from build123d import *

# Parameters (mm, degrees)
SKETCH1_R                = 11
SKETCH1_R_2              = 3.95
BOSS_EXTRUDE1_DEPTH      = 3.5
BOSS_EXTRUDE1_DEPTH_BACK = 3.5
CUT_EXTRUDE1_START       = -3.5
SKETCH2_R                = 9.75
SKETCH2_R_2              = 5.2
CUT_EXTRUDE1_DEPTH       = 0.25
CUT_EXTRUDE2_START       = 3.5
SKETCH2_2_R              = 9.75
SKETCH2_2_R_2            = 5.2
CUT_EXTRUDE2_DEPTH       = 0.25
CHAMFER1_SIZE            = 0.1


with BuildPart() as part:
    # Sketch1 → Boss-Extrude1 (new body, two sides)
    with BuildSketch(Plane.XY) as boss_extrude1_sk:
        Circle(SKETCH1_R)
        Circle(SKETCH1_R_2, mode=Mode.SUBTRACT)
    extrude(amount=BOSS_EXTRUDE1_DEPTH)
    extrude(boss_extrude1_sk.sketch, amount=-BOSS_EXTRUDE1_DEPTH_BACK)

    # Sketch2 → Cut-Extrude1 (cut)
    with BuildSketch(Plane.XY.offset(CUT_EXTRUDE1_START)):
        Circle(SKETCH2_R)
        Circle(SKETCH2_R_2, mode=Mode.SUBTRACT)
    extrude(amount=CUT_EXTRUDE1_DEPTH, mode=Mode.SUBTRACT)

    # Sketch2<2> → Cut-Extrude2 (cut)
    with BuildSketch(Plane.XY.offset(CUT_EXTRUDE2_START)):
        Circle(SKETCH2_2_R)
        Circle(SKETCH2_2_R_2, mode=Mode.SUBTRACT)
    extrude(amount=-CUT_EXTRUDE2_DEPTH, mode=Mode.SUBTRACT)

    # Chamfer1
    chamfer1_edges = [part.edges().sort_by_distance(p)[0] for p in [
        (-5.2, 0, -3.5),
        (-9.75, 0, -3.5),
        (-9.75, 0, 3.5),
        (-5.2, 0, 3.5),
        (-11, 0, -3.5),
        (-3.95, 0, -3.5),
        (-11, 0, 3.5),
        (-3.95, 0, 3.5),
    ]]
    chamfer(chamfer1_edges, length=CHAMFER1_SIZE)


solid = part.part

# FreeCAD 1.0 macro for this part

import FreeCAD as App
import Part
import Sketcher
from FreeCAD import Vector


def edges_at(feature, points):
    """Names of the edges that pass closest to the given points."""
    edges = feature.Shape.Edges
    near = lambda p: min(range(len(edges)), key=lambda i: edges[i].distToShape(Part.Vertex(*p))[0])
    return sorted({f"Edge{near(p) + 1}" for p in points})

doc = App.newDocument("Part")
params = doc.addObject("Spreadsheet::Sheet", "Params")
for row, (alias, value) in enumerate([
    ("sketch1_diameter", "22 mm"),
    ("sketch1_diameter2", "7.9 mm"),
    ("pad1_length", "3.5 mm"),
    ("pad1_length2", "3.5 mm"),
    ("sketch2_diameter", "19.5 mm"),
    ("sketch2_diameter2", "10.4 mm"),
    ("pocket1_length", "0.25 mm"),
    ("sketch3_diameter", "19.5 mm"),
    ("sketch3_diameter2", "10.4 mm"),
    ("pocket2_length", "0.25 mm"),
    ("chamfer_size", "0.1 mm"),
], start=1):
    params.set(f"A{row}", alias)
    params.set(f"B{row}", "=" + value)
    params.setAlias(f"B{row}", alias)

body = doc.addObject("PartDesign::Body", "Body")

sketch1 = body.newObject("Sketcher::SketchObject", "Sketch")
sketch1.AttachmentSupport = (doc.getObject("XY_Plane"), [""])
sketch1.MapMode = "FlatFace"
sketch1.addGeometry(Part.Circle(Vector(0, 0, 0), Vector(0, 0, 1), 11), False)
sketch1.addGeometry(Part.Circle(Vector(0, 0, 0), Vector(0, 0, 1), 4), False)
sketch1.addConstraint(Sketcher.Constraint("Coincident", 0, 3, -1, 1))
sketch1.addConstraint(Sketcher.Constraint("Coincident", 1, 3, -1, 1))
sketch1.addConstraint(Sketcher.Constraint("Diameter", 0, 22.0))
sketch1.addConstraint(Sketcher.Constraint("Diameter", 1, 7.9))
sketch1.setExpression("Constraints[2]", "Params.sketch1_diameter")
sketch1.setExpression("Constraints[3]", "Params.sketch1_diameter2")
pad1 = body.newObject("PartDesign::Pad", "Pad")
pad1.Profile = sketch1
pad1.Type = "TwoLengths"
pad1.setExpression("Length", "Params.pad1_length")
pad1.setExpression("Length2", "Params.pad1_length2")

sketch2 = body.newObject("Sketcher::SketchObject", "Sketch001")
sketch2.AttachmentSupport = (doc.getObject("XY_Plane"), [""])
sketch2.MapMode = "FlatFace"
sketch2.AttachmentOffset = App.Placement(Vector(0, 0, -3.5), App.Rotation())
sketch2.addGeometry(Part.Circle(Vector(0, 0, 0), Vector(0, 0, 1), 10), False)
sketch2.addGeometry(Part.Circle(Vector(0, 0, 0), Vector(0, 0, 1), 5), False)
sketch2.addConstraint(Sketcher.Constraint("Coincident", 0, 3, -1, 1))
sketch2.addConstraint(Sketcher.Constraint("Coincident", 1, 3, -1, 1))
sketch2.addConstraint(Sketcher.Constraint("Diameter", 0, 19.5))
sketch2.addConstraint(Sketcher.Constraint("Diameter", 1, 10.4))
sketch2.setExpression("Constraints[2]", "Params.sketch2_diameter")
sketch2.setExpression("Constraints[3]", "Params.sketch2_diameter2")
pocket1 = body.newObject("PartDesign::Pocket", "Pocket")
pocket1.Profile = sketch2
pocket1.setExpression("Length", "Params.pocket1_length")
pocket1.Reversed = True

sketch3 = body.newObject("Sketcher::SketchObject", "Sketch002")
sketch3.AttachmentSupport = (doc.getObject("XY_Plane"), [""])
sketch3.MapMode = "FlatFace"
sketch3.AttachmentOffset = App.Placement(Vector(0, 0, 3.5), App.Rotation())
sketch3.addGeometry(Part.Circle(Vector(0, 0, 0), Vector(0, 0, 1), 10), False)
sketch3.addGeometry(Part.Circle(Vector(0, 0, 0), Vector(0, 0, 1), 5), False)
sketch3.addConstraint(Sketcher.Constraint("Coincident", 0, 3, -1, 1))
sketch3.addConstraint(Sketcher.Constraint("Coincident", 1, 3, -1, 1))
sketch3.addConstraint(Sketcher.Constraint("Diameter", 0, 19.5))
sketch3.addConstraint(Sketcher.Constraint("Diameter", 1, 10.4))
sketch3.setExpression("Constraints[2]", "Params.sketch3_diameter")
sketch3.setExpression("Constraints[3]", "Params.sketch3_diameter2")
pocket2 = body.newObject("PartDesign::Pocket", "Pocket001")
pocket2.Profile = sketch3
pocket2.setExpression("Length", "Params.pocket2_length")
doc.recompute()

chamfer = body.newObject("PartDesign::Chamfer", "Chamfer")
chamfer.Base = (pocket2, edges_at(pocket2, [
    (-5.2, 0, -3.5),
    (-9.75, 0, -3.5),
    (-9.75, 0, 3.5),
    (-5.2, 0, 3.5),
    (-11, 0, -3.5),
    (-3.95, 0, -3.5),
    (-11, 0, 3.5),
    (-3.95, 0, 3.5),
]))
chamfer.setExpression("Size", "Params.chamfer_size")

doc.recompute()
